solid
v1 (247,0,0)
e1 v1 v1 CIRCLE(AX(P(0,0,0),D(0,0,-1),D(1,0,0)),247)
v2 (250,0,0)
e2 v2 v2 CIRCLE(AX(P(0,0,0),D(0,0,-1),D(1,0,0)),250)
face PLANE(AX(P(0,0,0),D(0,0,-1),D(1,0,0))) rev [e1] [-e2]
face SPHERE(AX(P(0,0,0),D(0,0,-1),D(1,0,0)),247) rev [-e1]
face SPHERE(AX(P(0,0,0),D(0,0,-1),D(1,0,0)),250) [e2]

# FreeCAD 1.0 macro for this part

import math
import FreeCAD as App
import Part
import Sketcher

V = App.Vector
Q = App.Units.Quantity

doc = App.newDocument("Part")
body = doc.addObject("PartDesign::Body", "Body")

sketch1 = body.newObject("Sketcher::SketchObject", "Sketch")
sketch1.AttachmentSupport = (doc.getObject("XY_Plane"), [""])
sketch1.MapMode = "FlatFace"
sketch1.addGeometry(Part.ArcOfCircle(Part.Circle(V(0, 0, 0), V(0, 0, 1), 250), math.radians(180), math.radians(360)), False)
sketch1.addGeometry(Part.LineSegment(V(250, 0, 0), V(247, 0, 0)), False)
sketch1.addGeometry(Part.ArcOfCircle(Part.Circle(V(0, 0, 0), V(0, 0, 1), 247), math.radians(180), math.radians(360)), False)
sketch1.addGeometry(Part.LineSegment(V(-247, 0, 0), V(-250, 0, 0)), False)
sketch1.addConstraint(Sketcher.Constraint("Coincident", 0, 2, 1, 1))
sketch1.addConstraint(Sketcher.Constraint("Coincident", 1, 2, 2, 2))
sketch1.addConstraint(Sketcher.Constraint("Coincident", 2, 1, 3, 1))
sketch1.addConstraint(Sketcher.Constraint("Coincident", 3, 2, 0, 1))
sketch1.addConstraint(Sketcher.Constraint("Horizontal", 1))
sketch1.addConstraint(Sketcher.Constraint("Horizontal", 3))
sketch1.addConstraint(Sketcher.Constraint("Coincident", 0, 3, -1, 1))
sketch1.addConstraint(Sketcher.Constraint("Coincident", 2, 3, -1, 1))
sketch1.addConstraint(Sketcher.Constraint("PointOnObject", 0, 2, -1))
sketch1.addConstraint(Sketcher.Constraint("PointOnObject", 2, 1, -1))
sketch1.addConstraint(Sketcher.Constraint("Radius", 0, Q("250 mm")))
sketch1.addConstraint(Sketcher.Constraint("Radius", 2, Q("247 mm")))
revolution = body.newObject("PartDesign::Revolution", "Revolution")
revolution.Profile = sketch1
revolution.ReferenceAxis = (sketch1, ["H_Axis"])
revolution.Angle = 180

doc.recompute()
